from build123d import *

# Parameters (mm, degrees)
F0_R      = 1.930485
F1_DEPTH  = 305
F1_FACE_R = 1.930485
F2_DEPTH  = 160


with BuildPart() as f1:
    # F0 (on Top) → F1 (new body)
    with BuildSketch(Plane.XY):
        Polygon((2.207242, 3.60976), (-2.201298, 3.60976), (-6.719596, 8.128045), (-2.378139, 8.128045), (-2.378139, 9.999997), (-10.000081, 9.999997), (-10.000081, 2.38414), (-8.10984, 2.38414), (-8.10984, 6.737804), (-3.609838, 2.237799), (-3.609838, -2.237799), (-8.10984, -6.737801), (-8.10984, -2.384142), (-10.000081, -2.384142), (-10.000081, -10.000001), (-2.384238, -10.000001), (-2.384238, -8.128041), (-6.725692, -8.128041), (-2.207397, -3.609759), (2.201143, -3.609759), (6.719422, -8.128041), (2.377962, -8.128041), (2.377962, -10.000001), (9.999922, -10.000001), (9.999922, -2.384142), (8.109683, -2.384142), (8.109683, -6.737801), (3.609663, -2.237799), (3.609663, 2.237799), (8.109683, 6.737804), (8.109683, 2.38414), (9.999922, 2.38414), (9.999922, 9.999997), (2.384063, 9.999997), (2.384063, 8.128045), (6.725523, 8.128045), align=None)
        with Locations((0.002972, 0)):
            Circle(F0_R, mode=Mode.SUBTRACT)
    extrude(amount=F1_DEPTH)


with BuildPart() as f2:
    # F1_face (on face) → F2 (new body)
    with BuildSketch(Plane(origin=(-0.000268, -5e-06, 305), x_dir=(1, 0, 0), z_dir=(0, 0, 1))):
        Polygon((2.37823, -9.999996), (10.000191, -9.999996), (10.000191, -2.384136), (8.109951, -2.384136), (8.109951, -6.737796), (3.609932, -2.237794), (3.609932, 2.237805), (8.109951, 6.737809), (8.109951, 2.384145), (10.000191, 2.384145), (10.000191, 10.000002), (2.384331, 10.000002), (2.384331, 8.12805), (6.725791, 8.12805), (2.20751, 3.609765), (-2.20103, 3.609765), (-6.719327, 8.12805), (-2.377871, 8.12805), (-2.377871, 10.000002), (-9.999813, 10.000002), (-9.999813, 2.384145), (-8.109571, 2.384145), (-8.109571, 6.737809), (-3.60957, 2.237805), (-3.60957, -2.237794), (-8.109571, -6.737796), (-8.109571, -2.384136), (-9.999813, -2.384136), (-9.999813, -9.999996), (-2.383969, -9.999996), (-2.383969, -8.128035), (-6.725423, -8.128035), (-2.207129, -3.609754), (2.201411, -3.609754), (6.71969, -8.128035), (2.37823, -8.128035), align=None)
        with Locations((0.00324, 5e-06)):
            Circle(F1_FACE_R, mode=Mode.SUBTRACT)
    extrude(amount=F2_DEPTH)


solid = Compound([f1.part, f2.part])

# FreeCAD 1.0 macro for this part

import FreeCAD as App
import Part
import Sketcher


def add_polygon(sketch, points):
    """Adds a closed chain of lines whose ends are joined by coincident constraints."""
    first, n = sketch.GeometryCount, len(points)
    for a, b in zip(points, points[1:] + points[:1]):
        sketch.addGeometry(Part.LineSegment(App.Vector(*a, 0), App.Vector(*b, 0)), False)
    for i in range(n):
        sketch.addConstraint(Sketcher.Constraint("Coincident", first + i, 2, first + (i + 1) % n, 1))

doc = App.newDocument("Part")
params = doc.addObject("Spreadsheet::Sheet", "Params")
for row, (alias, value) in enumerate([
    ("pad1_length", "305 mm"),
    ("pad2_length", "160 mm"),
], start=1):
    params.set(f"A{row}", alias)
    params.set(f"B{row}", "=" + value)
    params.setAlias(f"B{row}", alias)

body = doc.addObject("PartDesign::Body", "Body")

# Sketch on XY plane
sketch1 = body.newObject("Sketcher::SketchObject", "Sketch")
sketch1.AttachmentSupport = (doc.getObject("XY_Plane"), [""])
sketch1.MapMode = "FlatFace"
add_polygon(sketch1, [(2.207242, 3.60976), (-2.201298, 3.60976), (-6.719596, 8.128045), (-2.378139, 8.128045), (-2.378139, 9.999997), (-10.000081, 9.999997), (-10.000081, 2.38414), (-8.10984, 2.38414), (-8.10984, 6.737804), (-3.609838, 2.237799), (-3.609838, -2.237799), (-8.10984, -6.737801), (-8.10984, -2.384142), (-10.000081, -2.384142), (-10.000081, -10.000001), (-2.384238, -10.000001), (-2.384238, -8.128041), (-6.725692, -8.128041), (-2.207397, -3.609759), (2.201143, -3.609759), (6.719422, -8.128041), (2.377962, -8.128041), (2.377962, -10.000001), (9.999922, -10.000001), (9.999922, -2.384142), (8.109683, -2.384142), (8.109683, -6.737801), (3.609663, -2.237799), (3.609663, 2.237799), (8.109683, 6.737804), (8.109683, 2.38414), (9.999922, 2.38414), (9.999922, 9.999997), (2.384063, 9.999997), (2.384063, 8.128045), (6.725523, 8.128045)])  # lines 0-35
sketch1.addGeometry(Part.Circle(App.Vector(0.002972, 0, 0), App.Vector(0, 0, 1), 1.930485), False)  # 36
sketch1.addConstraint(Sketcher.Constraint("Horizontal", 0))
sketch1.addConstraint(Sketcher.Constraint("Horizontal", 2))
sketch1.addConstraint(Sketcher.Constraint("Vertical", 3))
sketch1.addConstraint(Sketcher.Constraint("Horizontal", 4))
sketch1.addConstraint(Sketcher.Constraint("Vertical", 5))
sketch1.addConstraint(Sketcher.Constraint("Horizontal", 6))
sketch1.addConstraint(Sketcher.Constraint("Vertical", 7))
sketch1.addConstraint(Sketcher.Constraint("Vertical", 9))
sketch1.addConstraint(Sketcher.Constraint("Vertical", 11))
sketch1.addConstraint(Sketcher.Constraint("Horizontal", 12))
sketch1.addConstraint(Sketcher.Constraint("Vertical", 13))
sketch1.addConstraint(Sketcher.Constraint("Horizontal", 14))
sketch1.addConstraint(Sketcher.Constraint("Vertical", 15))
sketch1.addConstraint(Sketcher.Constraint("Horizontal", 16))
sketch1.addConstraint(Sketcher.Constraint("Horizontal", 18))
sketch1.addConstraint(Sketcher.Constraint("Horizontal", 20))
sketch1.addConstraint(Sketcher.Constraint("Vertical", 21))
sketch1.addConstraint(Sketcher.Constraint("Horizontal", 22))
sketch1.addConstraint(Sketcher.Constraint("Vertical", 23))
sketch1.addConstraint(Sketcher.Constraint("Horizontal", 24))
sketch1.addConstraint(Sketcher.Constraint("Vertical", 25))
sketch1.addConstraint(Sketcher.Constraint("Vertical", 27))
sketch1.addConstraint(Sketcher.Constraint("Vertical", 29))
sketch1.addConstraint(Sketcher.Constraint("Horizontal", 30))
sketch1.addConstraint(Sketcher.Constraint("Vertical", 31))
sketch1.addConstraint(Sketcher.Constraint("Horizontal", 32))
sketch1.addConstraint(Sketcher.Constraint("Vertical", 33))
sketch1.addConstraint(Sketcher.Constraint("Horizontal", 34))
sketch1.addConstraint(Sketcher.Constraint("PointOnObject", 36, 3, -1))
sketch1.addConstraint(Sketcher.Constraint("DistanceY", 13, 2, -1, 1, 10.000001))
sketch1.addConstraint(Sketcher.Constraint("DistanceY", 21, 2, -1, 1, 10.000001))
sketch1.addConstraint(Sketcher.Constraint("Diameter", 36, 3.86097))
sketch1.addConstraint(Sketcher.Constraint("DistanceX", 0, 2, 0, 1, 4.40854))
sketch1.addConstraint(Sketcher.Constraint("DistanceX", 4, 2, 4, 1, 7.621942))
sketch1.addConstraint(Sketcher.Constraint("DistanceX", 6, 1, 6, 2, 1.890241))
sketch1.addConstraint(Sketcher.Constraint("DistanceX", 12, 2, 12, 1, 1.890241))
sketch1.addConstraint(Sketcher.Constraint("DistanceX", 18, 1, 18, 2, 4.40854))
sketch1.addConstraint(Sketcher.Constraint("DistanceX", 20, 2, 20, 1, 4.34146))
sketch1.addConstraint(Sketcher.Constraint("DistanceX", 22, 1, 22, 2, 7.62196))
sketch1.addConstraint(Sketcher.Constraint("DistanceX", 24, 2, 24, 1, 1.890239))
sketch1.addConstraint(Sketcher.Constraint("DistanceX", 30, 1, 30, 2, 1.890239))
sketch1.addConstraint(Sketcher.Constraint("DistanceX", 32, 2, 32, 1, 7.615859))
sketch1.addConstraint(Sketcher.Constraint("DistanceX", 34, 1, 34, 2, 4.34146))
sketch1.addConstraint(Sketcher.Constraint("DistanceY", 11, 1, 11, 2, 4.353659))
sketch1.addConstraint(Sketcher.Constraint("DistanceY", 13, 2, 13, 1, 7.615859))
sketch1.addConstraint(Sketcher.Constraint("DistanceY", 15, 1, 15, 2, 1.87196))
sketch1.addConstraint(Sketcher.Constraint("DistanceY", 21, 2, 21, 1, 1.87196))
sketch1.addConstraint(Sketcher.Constraint("DistanceY", 23, 1, 23, 2, 7.615859))
sketch1.addConstraint(Sketcher.Constraint("DistanceY", 25, 2, 25, 1, 4.353659))
sketch1.addConstraint(Sketcher.Constraint("DistanceX", 0, 2, -1, 1, 2.201298))
sketch1.addConstraint(Sketcher.Constraint("DistanceY", -1, 1, 8, 2, 2.237799))
sketch1.addConstraint(Sketcher.Constraint("DistanceY", 9, 2, -1, 1, 2.237799))
sketch1.addConstraint(Sketcher.Constraint("DistanceY", 26, 2, -1, 1, 2.237799))
sketch1.addConstraint(Sketcher.Constraint("DistanceY", -1, 1, 27, 2, 2.237799))
sketch1.addConstraint(Sketcher.Constraint("DistanceX", 8, 2, 2, 2, 1.231699))
sketch1.addConstraint(Sketcher.Constraint("DistanceX", 9, 2, 14, 2, 1.2256))
sketch1.addConstraint(Sketcher.Constraint("DistanceX", 15, 2, 20, 2, 4.7622))
sketch1.addConstraint(Sketcher.Constraint("DistanceX", 20, 2, 26, 2, 1.231701))
sketch1.addConstraint(Sketcher.Constraint("DistanceY", 27, 2, 31, 2, 7.762198))
sketch1.addConstraint(Sketcher.Constraint("DistanceX", 32, 2, 27, 2, 1.2256))
sketch1.addConstraint(Sketcher.Constraint("Distance", 1, 6.389829))
sketch1.addConstraint(Sketcher.Constraint("Distance", 28, 6.363979))
sketch1.addConstraint(Sketcher.Constraint("DistanceX", 2, 1, 2, 2, 4.341457))
sketch1.addConstraint(Sketcher.Constraint("DistanceX", 14, 1, 14, 2, 7.615843))
sketch1.addConstraint(Sketcher.Constraint("DistanceX", 16, 2, 16, 1, 4.341454))
sketch1.addConstraint(Sketcher.Constraint("DistanceY", 3, 1, 3, 2, 1.871952))
sketch1.addConstraint(Sketcher.Constraint("DistanceY", 5, 2, 5, 1, 7.615857))
sketch1.addConstraint(Sketcher.Constraint("DistanceY", 7, 1, 7, 2, 4.353664))
sketch1.addConstraint(Sketcher.Constraint("DistanceY", 29, 2, 29, 1, 4.353664))
sketch1.addConstraint(Sketcher.Constraint("DistanceY", 33, 2, 33, 1, 1.871952))
sketch1.addConstraint(Sketcher.Constraint("DistanceX", -1, 1, 36, 3, 0.002972))
sketch1.addConstraint(Sketcher.Constraint("DistanceY", -1, 1, 0, 2, 3.60976))
sketch1.addConstraint(Sketcher.Constraint("DistanceX", 2, 2, -1, 1, 2.378139))
sketch1.addConstraint(Sketcher.Constraint("DistanceY", 17, 2, -1, 1, 3.609759))
sketch1.addConstraint(Sketcher.Constraint("DistanceX", 9, 2, 17, 2, 1.402441))
pad1 = body.newObject("PartDesign::Pad", "Pad")
pad1.Profile = sketch1
pad1.setExpression("Length", "Params.pad1_length")
body2 = doc.addObject("PartDesign::Body", "Body001")

# Sketch on XY plane
sketch2 = body2.newObject("Sketcher::SketchObject", "Sketch001")
sketch2.AttachmentSupport = (doc.getObject("XY_Plane001"), [""])
sketch2.MapMode = "FlatFace"
sketch2.AttachmentOffset = App.Placement(App.Vector(0, 0, 305), App.Rotation())
add_polygon(sketch2, [(2.377962, -10.000001), (9.999923, -10.000001), (9.999923, -2.384141), (8.109683, -2.384141), (8.109683, -6.737801), (3.609664, -2.237799), (3.609664, 2.2378), (8.109683, 6.737804), (8.109683, 2.38414), (9.999923, 2.38414), (9.999923, 9.999997), (2.384063, 9.999997), (2.384063, 8.128045), (6.725523, 8.128045), (2.207242, 3.60976), (-2.201298, 3.60976), (-6.719595, 8.128045), (-2.378139, 8.128045), (-2.378139, 9.999997), (-10.000081, 9.999997), (-10.000081, 2.38414), (-8.109839, 2.38414), (-8.109839, 6.737804), (-3.609838, 2.2378), (-3.609838, -2.237799), (-8.109839, -6.737801), (-8.109839, -2.384141), (-10.000081, -2.384141), (-10.000081, -10.000001), (-2.384237, -10.000001), (-2.384237, -8.12804), (-6.725691, -8.12804), (-2.207397, -3.609759), (2.201143, -3.609759), (6.719422, -8.12804), (2.377962, -8.12804)])  # lines 0-35
sketch2.addGeometry(Part.Circle(App.Vector(0.002972, 0, 0), App.Vector(0, 0, 1), 1.930485), False)  # 36
sketch2.addConstraint(Sketcher.Constraint("Horizontal", 0))
sketch2.addConstraint(Sketcher.Constraint("Vertical", 1))
sketch2.addConstraint(Sketcher.Constraint("Horizontal", 2))
sketch2.addConstraint(Sketcher.Constraint("Vertical", 3))
sketch2.addConstraint(Sketcher.Constraint("Vertical", 5))
sketch2.addConstraint(Sketcher.Constraint("Vertical", 7))
sketch2.addConstraint(Sketcher.Constraint("Horizontal", 8))
sketch2.addConstraint(Sketcher.Constraint("Vertical", 9))
sketch2.addConstraint(Sketcher.Constraint("Horizontal", 10))
sketch2.addConstraint(Sketcher.Constraint("Vertical", 11))
sketch2.addConstraint(Sketcher.Constraint("Horizontal", 12))
sketch2.addConstraint(Sketcher.Constraint("Horizontal", 14))
sketch2.addConstraint(Sketcher.Constraint("Horizontal", 16))
sketch2.addConstraint(Sketcher.Constraint("Vertical", 17))
sketch2.addConstraint(Sketcher.Constraint("Horizontal", 18))
sketch2.addConstraint(Sketcher.Constraint("Vertical", 19))
sketch2.addConstraint(Sketcher.Constraint("Horizontal", 20))
sketch2.addConstraint(Sketcher.Constraint("Vertical", 21))
sketch2.addConstraint(Sketcher.Constraint("Vertical", 23))
sketch2.addConstraint(Sketcher.Constraint("Vertical", 25))
sketch2.addConstraint(Sketcher.Constraint("Horizontal", 26))
sketch2.addConstraint(Sketcher.Constraint("Vertical", 27))
sketch2.addConstraint(Sketcher.Constraint("Horizontal", 28))
sketch2.addConstraint(Sketcher.Constraint("Vertical", 29))
sketch2.addConstraint(Sketcher.Constraint("Horizontal", 30))
sketch2.addConstraint(Sketcher.Constraint("Horizontal", 32))
sketch2.addConstraint(Sketcher.Constraint("Horizontal", 34))
sketch2.addConstraint(Sketcher.Constraint("Vertical", 35))
sketch2.addConstraint(Sketcher.Constraint("PointOnObject", 36, 3, -1))
sketch2.addConstraint(Sketcher.Constraint("DistanceY", 0, 2, -1, 1, 10.000001))
sketch2.addConstraint(Sketcher.Constraint("DistanceY", 27, 2, -1, 1, 10.000001))
sketch2.addConstraint(Sketcher.Constraint("DistanceX", 20, 2, 22, 2, 4.500001))
sketch2.addConstraint(Sketcher.Constraint("DistanceX", 24, 2, 23, 2, 4.500001))
sketch2.addConstraint(Sketcher.Constraint("Diameter", 36, 3.86097))
sketch2.addConstraint(Sketcher.Constraint("DistanceY", 5, 1, 5, 2, 4.475599))
sketch2.addConstraint(Sketcher.Constraint("DistanceY", 23, 2, 23, 1, 4.475599))
sketch2.addConstraint(Sketcher.Constraint("DistanceX", 0, 1, 0, 2, 7.621961))
sketch2.addConstraint(Sketcher.Constraint("DistanceX", 2, 2, 2, 1, 1.89024))
sketch2.addConstraint(Sketcher.Constraint("DistanceX", 8, 1, 8, 2, 1.89024))
sketch2.addConstraint(Sketcher.Constraint("DistanceX", 10, 2, 10, 1, 7.61586))
sketch2.addConstraint(Sketcher.Constraint("DistanceX", 12, 1, 12, 2, 4.34146))
sketch2.addConstraint(Sketcher.Constraint("DistanceX", 14, 2, 14, 1, 4.40854))
sketch2.addConstraint(Sketcher.Constraint("DistanceX", 18, 2, 18, 1, 7.621942))
sketch2.addConstraint(Sketcher.Constraint("DistanceX", 32, 1, 32, 2, 4.40854))
sketch2.addConstraint(Sketcher.Constraint("DistanceX", 34, 2, 34, 1, 4.34146))
sketch2.addConstraint(Sketcher.Constraint("DistanceY", 1, 1, 1, 2, 7.61586))
sketch2.addConstraint(Sketcher.Constraint("DistanceY", 3, 2, 3, 1, 4.35366))
sketch2.addConstraint(Sketcher.Constraint("DistanceY", 25, 1, 25, 2, 4.35366))
sketch2.addConstraint(Sketcher.Constraint("DistanceY", 27, 2, 27, 1, 7.61586))
sketch2.addConstraint(Sketcher.Constraint("DistanceY", 29, 1, 29, 2, 1.871961))
sketch2.addConstraint(Sketcher.Constraint("DistanceY", 35, 2, 35, 1, 1.871961))
sketch2.addConstraint(Sketcher.Constraint("DistanceY", 4, 2, -1, 1, 2.237799))
sketch2.addConstraint(Sketcher.Constraint("DistanceX", 14, 2, -1, 1, 2.201298))
sketch2.addConstraint(Sketcher.Constraint("DistanceY", -1, 1, 22, 2, 2.2378))
sketch2.addConstraint(Sketcher.Constraint("DistanceX", 10, 2, 5, 2, 1.225601))
sketch2.addConstraint(Sketcher.Constraint("DistanceX", 20, 2, 16, 2, 5.7317))
sketch2.addConstraint(Sketcher.Constraint("DistanceX", 24, 2, 28, 2, 5.725602))
sketch2.addConstraint(Sketcher.Constraint("DistanceX", 28, 2, 4, 2, 5.993901))
sketch2.addConstraint(Sketcher.Constraint("DistanceX", 29, 2, 34, 2, 4.762199))
sketch2.addConstraint(Sketcher.Constraint("Distance", 15, 6.389828))
sketch2.addConstraint(Sketcher.Constraint("DistanceX", 16, 1, 16, 2, 4.341456))
sketch2.addConstraint(Sketcher.Constraint("DistanceX", 26, 2, 26, 1, 1.890242))
sketch2.addConstraint(Sketcher.Constraint("DistanceX", 30, 2, 30, 1, 4.341454))
sketch2.addConstraint(Sketcher.Constraint("DistanceY", 7, 2, 7, 1, 4.353664))
sketch2.addConstraint(Sketcher.Constraint("DistanceY", 9, 1, 9, 2, 7.615857))
sketch2.addConstraint(Sketcher.Constraint("DistanceY", 11, 2, 11, 1, 1.871952))
sketch2.addConstraint(Sketcher.Constraint("DistanceY", 17, 1, 17, 2, 1.871952))
sketch2.addConstraint(Sketcher.Constraint("DistanceY", 19, 2, 19, 1, 7.615857))
sketch2.addConstraint(Sketcher.Constraint("DistanceY", 21, 1, 21, 2, 4.353664))
sketch2.addConstraint(Sketcher.Constraint("DistanceX", -1, 1, 36, 3, 0.002972))
sketch2.addConstraint(Sketcher.Constraint("DistanceY", -1, 1, 7, 2, 2.38414))
sketch2.addConstraint(Sketcher.Constraint("DistanceY", -1, 1, 13, 2, 3.60976))
sketch2.addConstraint(Sketcher.Constraint("DistanceX", 16, 2, -1, 1, 2.378139))
sketch2.addConstraint(Sketcher.Constraint("DistanceY", 31, 2, -1, 1, 3.609759))
sketch2.addConstraint(Sketcher.Constraint("DistanceX", 23, 2, 31, 2, 1.402441))
pad2 = body2.newObject("PartDesign::Pad", "Pad001")
pad2.Profile = sketch2
pad2.setExpression("Length", "Params.pad2_length")

doc.recompute()
